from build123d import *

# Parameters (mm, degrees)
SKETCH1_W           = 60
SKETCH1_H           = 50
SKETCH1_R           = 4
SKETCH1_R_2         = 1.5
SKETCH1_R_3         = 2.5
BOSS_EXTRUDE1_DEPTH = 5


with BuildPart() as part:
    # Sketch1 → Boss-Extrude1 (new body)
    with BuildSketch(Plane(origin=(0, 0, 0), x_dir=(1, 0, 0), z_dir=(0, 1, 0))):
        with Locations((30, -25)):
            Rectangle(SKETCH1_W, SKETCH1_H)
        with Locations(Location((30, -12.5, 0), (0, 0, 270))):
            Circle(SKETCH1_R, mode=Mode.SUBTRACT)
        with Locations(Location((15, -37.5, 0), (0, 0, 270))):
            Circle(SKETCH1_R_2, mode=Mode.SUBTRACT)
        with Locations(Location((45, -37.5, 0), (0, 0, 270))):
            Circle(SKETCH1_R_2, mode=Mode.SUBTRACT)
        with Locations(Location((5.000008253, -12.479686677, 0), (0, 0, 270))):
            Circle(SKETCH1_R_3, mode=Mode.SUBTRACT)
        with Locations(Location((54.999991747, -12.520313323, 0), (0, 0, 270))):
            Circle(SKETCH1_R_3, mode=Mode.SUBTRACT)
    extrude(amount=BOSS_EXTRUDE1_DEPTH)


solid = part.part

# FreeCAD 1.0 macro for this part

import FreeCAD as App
import Part
import Sketcher
from FreeCAD import Vector

doc = App.newDocument("Part")
body = doc.addObject("PartDesign::Body", "Body")

sketch1 = doc.addObject("Sketcher::SketchObject", "Sketch")
body.addObject(sketch1)
sketch1.AttachmentSupport = (doc.XZ_Plane, [""])
sketch1.MapMode = "FlatFace"
sketch1.addGeometry([
    Part.LineSegment(Vector(0, 0, 0), Vector(0, 50, 0)),
    Part.LineSegment(Vector(0, 50, 0), Vector(60, 50, 0)),
    Part.LineSegment(Vector(60, 50, 0), Vector(60, 0, 0)),
    Part.LineSegment(Vector(60, 0, 0), Vector(0, 0, 0)),
    Part.Circle(Vector(15, 37.5, 0), Vector(0, 0, 1), 1.5),
    Part.Circle(Vector(45, 37.5, 0), Vector(0, 0, 1), 1.5),
    Part.Circle(Vector(5, 12.5, 0), Vector(0, 0, 1), 2.5),
    Part.Circle(Vector(30, 12.5, 0), Vector(0, 0, 1), 4),
    Part.Circle(Vector(55, 12.5, 0), Vector(0, 0, 1), 2.5),
], False)
sketch1.addConstraint([
    Sketcher.Constraint("Coincident", 0, 2, 1, 1),
    Sketcher.Constraint("Coincident", 1, 2, 2, 1),
    Sketcher.Constraint("Coincident", 2, 2, 3, 1),
    Sketcher.Constraint("Coincident", 3, 2, 0, 1),
    Sketcher.Constraint("Vertical", 0),
    Sketcher.Constraint("Horizontal", 1),
    Sketcher.Constraint("Vertical", 2),
    Sketcher.Constraint("Horizontal", 3),
    Sketcher.Constraint("Coincident", 3, 2, -1, 1),
    Sketcher.Constraint("Equal", 4, 5),
    Sketcher.Constraint("Equal", 6, 8),
    Sketcher.Constraint("Horizontal", 4, 3, 5, 3),
    Sketcher.Constraint("Diameter", 4, 3.0),
    Sketcher.Constraint("Diameter", 6, 5.0),
    Sketcher.Constraint("Diameter", 7, 8.0),
    Sketcher.Constraint("DistanceX", 1, 1, 1, 2, 60.0),
    Sketcher.Constraint("DistanceY", 0, 1, 0, 2, 50.0),
    Sketcher.Constraint("DistanceX", -1, 1, 4, 3, 15.0),
    Sketcher.Constraint("DistanceX", -1, 1, 5, 3, 45.0),
    Sketcher.Constraint("DistanceX", -1, 1, 7, 3, 30.0),
    Sketcher.Constraint("DistanceY", 7, 3, 4, 3, 25.0),
    Sketcher.Constraint("DistanceY", -1, 1, 4, 3, 37.5),
    Sketcher.Constraint("DistanceX", -1, 1, 6, 3, 5.000008),
    Sketcher.Constraint("DistanceX", -1, 1, 8, 3, 54.999992),
    Sketcher.Constraint("DistanceY", -1, 1, 6, 3, 12.479687),
    Sketcher.Constraint("DistanceY", -1, 1, 8, 3, 12.520313),
])
pad1 = doc.addObject("PartDesign::Pad", "Pad")
body.addObject(pad1)
pad1.Profile = sketch1
pad1.Length = 5
pad1.Reversed = True

doc.recompute()
